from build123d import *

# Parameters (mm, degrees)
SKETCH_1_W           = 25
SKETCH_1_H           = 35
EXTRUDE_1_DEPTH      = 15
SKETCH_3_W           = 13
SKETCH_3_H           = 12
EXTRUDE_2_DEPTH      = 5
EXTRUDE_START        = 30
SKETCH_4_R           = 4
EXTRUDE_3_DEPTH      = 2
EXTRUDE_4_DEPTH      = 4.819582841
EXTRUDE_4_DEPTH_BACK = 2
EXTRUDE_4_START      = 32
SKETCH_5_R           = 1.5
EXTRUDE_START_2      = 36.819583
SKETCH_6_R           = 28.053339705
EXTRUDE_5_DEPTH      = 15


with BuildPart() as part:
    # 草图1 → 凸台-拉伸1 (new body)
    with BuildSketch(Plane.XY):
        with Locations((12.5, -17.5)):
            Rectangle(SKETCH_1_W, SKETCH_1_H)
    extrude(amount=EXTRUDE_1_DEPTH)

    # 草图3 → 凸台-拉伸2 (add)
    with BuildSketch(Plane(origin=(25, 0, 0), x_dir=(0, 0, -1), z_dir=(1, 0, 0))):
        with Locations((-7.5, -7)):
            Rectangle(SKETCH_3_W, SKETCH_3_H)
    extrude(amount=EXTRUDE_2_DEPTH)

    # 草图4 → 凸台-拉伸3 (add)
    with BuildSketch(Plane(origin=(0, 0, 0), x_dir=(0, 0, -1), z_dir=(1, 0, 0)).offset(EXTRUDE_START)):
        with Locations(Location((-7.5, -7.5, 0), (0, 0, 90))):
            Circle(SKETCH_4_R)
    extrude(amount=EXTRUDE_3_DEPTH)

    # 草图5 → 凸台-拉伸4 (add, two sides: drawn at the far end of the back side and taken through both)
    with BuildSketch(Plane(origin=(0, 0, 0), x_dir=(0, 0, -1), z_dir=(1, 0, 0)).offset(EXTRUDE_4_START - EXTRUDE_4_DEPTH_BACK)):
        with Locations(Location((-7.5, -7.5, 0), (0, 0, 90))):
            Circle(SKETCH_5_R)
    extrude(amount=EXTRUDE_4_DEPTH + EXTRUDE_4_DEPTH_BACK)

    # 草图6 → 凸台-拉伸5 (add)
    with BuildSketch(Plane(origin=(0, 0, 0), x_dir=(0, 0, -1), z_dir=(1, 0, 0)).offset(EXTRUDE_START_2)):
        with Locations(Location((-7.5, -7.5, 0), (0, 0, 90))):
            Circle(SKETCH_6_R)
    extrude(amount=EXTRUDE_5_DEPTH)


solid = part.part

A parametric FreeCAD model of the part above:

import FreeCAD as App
import Part
import Sketcher
from FreeCAD import Vector
Q = App.Units.Quantity


def add_polygon(sketch, points):
    """Adds a closed chain of lines whose ends are joined by coincident constraints."""
    first, n = sketch.GeometryCount, len(points)
    for a, b in zip(points, points[1:] + points[:1]):
        sketch.addGeometry(Part.LineSegment(App.Vector(*a, 0), App.Vector(*b, 0)), False)
    for i in range(n):
        sketch.addConstraint(Sketcher.Constraint("Coincident", first + i, 2, first + (i + 1) % n, 1))

doc = App.newDocument("Part")
params = doc.addObject("Spreadsheet::Sheet", "Params")
for row, (alias, value) in enumerate([
    ("sketch1_width", "25 mm"),
    ("sketch1_height", "35 mm"),
    ("pad1_length", "15 mm"),
    ("sketch2_width", "12 mm"),
    ("sketch2_height", "13 mm"),
    ("pad2_length", "5 mm"),
    ("sketch3_diameter", "8 mm"),
    ("pad3_length", "2 mm"),
    ("sketch4_diameter", "3 mm"),
    ("pad4_length", "4.819583 mm"),
    ("pad4_length2", "2 mm"),
    ("pad5_length", "15 mm"),
], start=1):
    params.set(f"A{row}", alias)
    params.set(f"B{row}", "=" + value)
    params.setAlias(f"B{row}", alias)

body = doc.addObject("PartDesign::Body", "Body")

sketch1 = doc.addObject("Sketcher::SketchObject", "Sketch")
body.addObject(sketch1)
sketch1.AttachmentSupport = (doc.XY_Plane, [""])
sketch1.MapMode = "FlatFace"
add_polygon(sketch1, [(0, 0), (0, -35), (25, -35), (25, 0)])
sketch1.addConstraint(Sketcher.Constraint("Vertical", 0))
sketch1.addConstraint(Sketcher.Constraint("Horizontal", 1))
sketch1.addConstraint(Sketcher.Constraint("Vertical", 2))
sketch1.addConstraint(Sketcher.Constraint("Horizontal", 3))
sketch1.addConstraint(Sketcher.Constraint("Coincident", 3, 2, -1, 1))
sketch1.addConstraint(Sketcher.Constraint("DistanceX", 1, 1, 1, 2, Q("25 mm")))
sketch1.addConstraint(Sketcher.Constraint("DistanceY", 0, 2, 0, 1, Q("35 mm")))
sketch1.setExpression("Constraints[9]", "Params.sketch1_width")
sketch1.setExpression("Constraints[10]", "Params.sketch1_height")
pad1 = doc.addObject("PartDesign::Pad", "Pad")
body.addObject(pad1)
pad1.Profile = sketch1
pad1.setExpression("Length", "Params.pad1_length")

sketch2 = doc.addObject("Sketcher::SketchObject", "Sketch001")
body.addObject(sketch2)
sketch2.AttachmentSupport = (doc.YZ_Plane, [""])
sketch2.MapMode = "FlatFace"
sketch2.AttachmentOffset = App.Placement(Vector(0, 0, 25), App.Rotation())
add_polygon(sketch2, [(-1, 14), (-13, 14), (-13, 1), (-1, 1)])
sketch2.addConstraint(Sketcher.Constraint("Horizontal", 0))
sketch2.addConstraint(Sketcher.Constraint("Vertical", 1))
sketch2.addConstraint(Sketcher.Constraint("Horizontal", 2))
sketch2.addConstraint(Sketcher.Constraint("Vertical", 3))
sketch2.addConstraint(Sketcher.Constraint("DistanceX", 0, 2, 0, 1, Q("12 mm")))
sketch2.addConstraint(Sketcher.Constraint("DistanceY", 1, 2, 1, 1, Q("13 mm")))
sketch2.addConstraint(Sketcher.Constraint("DistanceX", 0, 2, -1, 1, Q("13 mm")))
sketch2.addConstraint(Sketcher.Constraint("DistanceY", -1, 1, 0, 2, Q("14 mm")))
sketch2.setExpression("Constraints[8]", "Params.sketch2_width")
sketch2.setExpression("Constraints[9]", "Params.sketch2_height")
pad2 = doc.addObject("PartDesign::Pad", "Pad001")
body.addObject(pad2)
pad2.Profile = sketch2
pad2.setExpression("Length", "Params.pad2_length")

sketch3 = doc.addObject("Sketcher::SketchObject", "Sketch002")
body.addObject(sketch3)
sketch3.AttachmentSupport = (doc.YZ_Plane, [""])
sketch3.MapMode = "FlatFace"
sketch3.AttachmentOffset = App.Placement(Vector(0, 0, 30), App.Rotation())
sketch3.addGeometry(Part.Circle(Vector(-7.5, 7.5, 0), Vector(0, 0, 1), 4), False)
sketch3.addConstraint(Sketcher.Constraint("Diameter", 0, Q("8 mm")))
sketch3.addConstraint(Sketcher.Constraint("DistanceX", 0, 3, -1, 1, Q("7.5 mm")))
sketch3.addConstraint(Sketcher.Constraint("DistanceY", -1, 1, 0, 3, Q("7.5 mm")))
sketch3.setExpression("Constraints[0]", "Params.sketch3_diameter")
pad3 = doc.addObject("PartDesign::Pad", "Pad002")
body.addObject(pad3)
pad3.Profile = sketch3
pad3.setExpression("Length", "Params.pad3_length")

sketch4 = doc.addObject("Sketcher::SketchObject", "Sketch003")
body.addObject(sketch4)
sketch4.AttachmentSupport = (doc.YZ_Plane, [""])
sketch4.MapMode = "FlatFace"
sketch4.AttachmentOffset = App.Placement(Vector(0, 0, 32), App.Rotation())
sketch4.addGeometry(Part.Circle(Vector(-7.5, 7.5, 0), Vector(0, 0, 1), 1.5), False)
sketch4.addConstraint(Sketcher.Constraint("Diameter", 0, Q("3 mm")))
sketch4.addConstraint(Sketcher.Constraint("DistanceX", 0, 3, -1, 1, Q("7.5 mm")))
sketch4.addConstraint(Sketcher.Constraint("DistanceY", -1, 1, 0, 3, Q("7.5 mm")))
sketch4.setExpression("Constraints[0]", "Params.sketch4_diameter")
pad4 = doc.addObject("PartDesign::Pad", "Pad003")
body.addObject(pad4)
pad4.Profile = sketch4
pad4.Type = "TwoLengths"
pad4.setExpression("Length", "Params.pad4_length")
pad4.setExpression("Length2", "Params.pad4_length2")

sketch5 = doc.addObject("Sketcher::SketchObject", "Sketch004")
body.addObject(sketch5)
sketch5.AttachmentSupport = (doc.YZ_Plane, [""])
sketch5.MapMode = "FlatFace"
sketch5.AttachmentOffset = App.Placement(Vector(0, 0, 36.819583), App.Rotation())
sketch5.addGeometry(Part.Circle(Vector(-8, 8, 0), Vector(0, 0, 1), 28), False)
sketch5.addConstraint(Sketcher.Constraint("DistanceX", 0, 3, -1, 1, Q("7.5 mm")))
sketch5.addConstraint(Sketcher.Constraint("DistanceY", -1, 1, 0, 3, Q("7.5 mm")))
sketch5.addConstraint(Sketcher.Constraint("Diameter", 0, Q("56.106679 mm")))
pad5 = doc.addObject("PartDesign::Pad", "Pad004")
body.addObject(pad5)
pad5.Profile = sketch5
pad5.setExpression("Length", "Params.pad5_length")

doc.recompute()
